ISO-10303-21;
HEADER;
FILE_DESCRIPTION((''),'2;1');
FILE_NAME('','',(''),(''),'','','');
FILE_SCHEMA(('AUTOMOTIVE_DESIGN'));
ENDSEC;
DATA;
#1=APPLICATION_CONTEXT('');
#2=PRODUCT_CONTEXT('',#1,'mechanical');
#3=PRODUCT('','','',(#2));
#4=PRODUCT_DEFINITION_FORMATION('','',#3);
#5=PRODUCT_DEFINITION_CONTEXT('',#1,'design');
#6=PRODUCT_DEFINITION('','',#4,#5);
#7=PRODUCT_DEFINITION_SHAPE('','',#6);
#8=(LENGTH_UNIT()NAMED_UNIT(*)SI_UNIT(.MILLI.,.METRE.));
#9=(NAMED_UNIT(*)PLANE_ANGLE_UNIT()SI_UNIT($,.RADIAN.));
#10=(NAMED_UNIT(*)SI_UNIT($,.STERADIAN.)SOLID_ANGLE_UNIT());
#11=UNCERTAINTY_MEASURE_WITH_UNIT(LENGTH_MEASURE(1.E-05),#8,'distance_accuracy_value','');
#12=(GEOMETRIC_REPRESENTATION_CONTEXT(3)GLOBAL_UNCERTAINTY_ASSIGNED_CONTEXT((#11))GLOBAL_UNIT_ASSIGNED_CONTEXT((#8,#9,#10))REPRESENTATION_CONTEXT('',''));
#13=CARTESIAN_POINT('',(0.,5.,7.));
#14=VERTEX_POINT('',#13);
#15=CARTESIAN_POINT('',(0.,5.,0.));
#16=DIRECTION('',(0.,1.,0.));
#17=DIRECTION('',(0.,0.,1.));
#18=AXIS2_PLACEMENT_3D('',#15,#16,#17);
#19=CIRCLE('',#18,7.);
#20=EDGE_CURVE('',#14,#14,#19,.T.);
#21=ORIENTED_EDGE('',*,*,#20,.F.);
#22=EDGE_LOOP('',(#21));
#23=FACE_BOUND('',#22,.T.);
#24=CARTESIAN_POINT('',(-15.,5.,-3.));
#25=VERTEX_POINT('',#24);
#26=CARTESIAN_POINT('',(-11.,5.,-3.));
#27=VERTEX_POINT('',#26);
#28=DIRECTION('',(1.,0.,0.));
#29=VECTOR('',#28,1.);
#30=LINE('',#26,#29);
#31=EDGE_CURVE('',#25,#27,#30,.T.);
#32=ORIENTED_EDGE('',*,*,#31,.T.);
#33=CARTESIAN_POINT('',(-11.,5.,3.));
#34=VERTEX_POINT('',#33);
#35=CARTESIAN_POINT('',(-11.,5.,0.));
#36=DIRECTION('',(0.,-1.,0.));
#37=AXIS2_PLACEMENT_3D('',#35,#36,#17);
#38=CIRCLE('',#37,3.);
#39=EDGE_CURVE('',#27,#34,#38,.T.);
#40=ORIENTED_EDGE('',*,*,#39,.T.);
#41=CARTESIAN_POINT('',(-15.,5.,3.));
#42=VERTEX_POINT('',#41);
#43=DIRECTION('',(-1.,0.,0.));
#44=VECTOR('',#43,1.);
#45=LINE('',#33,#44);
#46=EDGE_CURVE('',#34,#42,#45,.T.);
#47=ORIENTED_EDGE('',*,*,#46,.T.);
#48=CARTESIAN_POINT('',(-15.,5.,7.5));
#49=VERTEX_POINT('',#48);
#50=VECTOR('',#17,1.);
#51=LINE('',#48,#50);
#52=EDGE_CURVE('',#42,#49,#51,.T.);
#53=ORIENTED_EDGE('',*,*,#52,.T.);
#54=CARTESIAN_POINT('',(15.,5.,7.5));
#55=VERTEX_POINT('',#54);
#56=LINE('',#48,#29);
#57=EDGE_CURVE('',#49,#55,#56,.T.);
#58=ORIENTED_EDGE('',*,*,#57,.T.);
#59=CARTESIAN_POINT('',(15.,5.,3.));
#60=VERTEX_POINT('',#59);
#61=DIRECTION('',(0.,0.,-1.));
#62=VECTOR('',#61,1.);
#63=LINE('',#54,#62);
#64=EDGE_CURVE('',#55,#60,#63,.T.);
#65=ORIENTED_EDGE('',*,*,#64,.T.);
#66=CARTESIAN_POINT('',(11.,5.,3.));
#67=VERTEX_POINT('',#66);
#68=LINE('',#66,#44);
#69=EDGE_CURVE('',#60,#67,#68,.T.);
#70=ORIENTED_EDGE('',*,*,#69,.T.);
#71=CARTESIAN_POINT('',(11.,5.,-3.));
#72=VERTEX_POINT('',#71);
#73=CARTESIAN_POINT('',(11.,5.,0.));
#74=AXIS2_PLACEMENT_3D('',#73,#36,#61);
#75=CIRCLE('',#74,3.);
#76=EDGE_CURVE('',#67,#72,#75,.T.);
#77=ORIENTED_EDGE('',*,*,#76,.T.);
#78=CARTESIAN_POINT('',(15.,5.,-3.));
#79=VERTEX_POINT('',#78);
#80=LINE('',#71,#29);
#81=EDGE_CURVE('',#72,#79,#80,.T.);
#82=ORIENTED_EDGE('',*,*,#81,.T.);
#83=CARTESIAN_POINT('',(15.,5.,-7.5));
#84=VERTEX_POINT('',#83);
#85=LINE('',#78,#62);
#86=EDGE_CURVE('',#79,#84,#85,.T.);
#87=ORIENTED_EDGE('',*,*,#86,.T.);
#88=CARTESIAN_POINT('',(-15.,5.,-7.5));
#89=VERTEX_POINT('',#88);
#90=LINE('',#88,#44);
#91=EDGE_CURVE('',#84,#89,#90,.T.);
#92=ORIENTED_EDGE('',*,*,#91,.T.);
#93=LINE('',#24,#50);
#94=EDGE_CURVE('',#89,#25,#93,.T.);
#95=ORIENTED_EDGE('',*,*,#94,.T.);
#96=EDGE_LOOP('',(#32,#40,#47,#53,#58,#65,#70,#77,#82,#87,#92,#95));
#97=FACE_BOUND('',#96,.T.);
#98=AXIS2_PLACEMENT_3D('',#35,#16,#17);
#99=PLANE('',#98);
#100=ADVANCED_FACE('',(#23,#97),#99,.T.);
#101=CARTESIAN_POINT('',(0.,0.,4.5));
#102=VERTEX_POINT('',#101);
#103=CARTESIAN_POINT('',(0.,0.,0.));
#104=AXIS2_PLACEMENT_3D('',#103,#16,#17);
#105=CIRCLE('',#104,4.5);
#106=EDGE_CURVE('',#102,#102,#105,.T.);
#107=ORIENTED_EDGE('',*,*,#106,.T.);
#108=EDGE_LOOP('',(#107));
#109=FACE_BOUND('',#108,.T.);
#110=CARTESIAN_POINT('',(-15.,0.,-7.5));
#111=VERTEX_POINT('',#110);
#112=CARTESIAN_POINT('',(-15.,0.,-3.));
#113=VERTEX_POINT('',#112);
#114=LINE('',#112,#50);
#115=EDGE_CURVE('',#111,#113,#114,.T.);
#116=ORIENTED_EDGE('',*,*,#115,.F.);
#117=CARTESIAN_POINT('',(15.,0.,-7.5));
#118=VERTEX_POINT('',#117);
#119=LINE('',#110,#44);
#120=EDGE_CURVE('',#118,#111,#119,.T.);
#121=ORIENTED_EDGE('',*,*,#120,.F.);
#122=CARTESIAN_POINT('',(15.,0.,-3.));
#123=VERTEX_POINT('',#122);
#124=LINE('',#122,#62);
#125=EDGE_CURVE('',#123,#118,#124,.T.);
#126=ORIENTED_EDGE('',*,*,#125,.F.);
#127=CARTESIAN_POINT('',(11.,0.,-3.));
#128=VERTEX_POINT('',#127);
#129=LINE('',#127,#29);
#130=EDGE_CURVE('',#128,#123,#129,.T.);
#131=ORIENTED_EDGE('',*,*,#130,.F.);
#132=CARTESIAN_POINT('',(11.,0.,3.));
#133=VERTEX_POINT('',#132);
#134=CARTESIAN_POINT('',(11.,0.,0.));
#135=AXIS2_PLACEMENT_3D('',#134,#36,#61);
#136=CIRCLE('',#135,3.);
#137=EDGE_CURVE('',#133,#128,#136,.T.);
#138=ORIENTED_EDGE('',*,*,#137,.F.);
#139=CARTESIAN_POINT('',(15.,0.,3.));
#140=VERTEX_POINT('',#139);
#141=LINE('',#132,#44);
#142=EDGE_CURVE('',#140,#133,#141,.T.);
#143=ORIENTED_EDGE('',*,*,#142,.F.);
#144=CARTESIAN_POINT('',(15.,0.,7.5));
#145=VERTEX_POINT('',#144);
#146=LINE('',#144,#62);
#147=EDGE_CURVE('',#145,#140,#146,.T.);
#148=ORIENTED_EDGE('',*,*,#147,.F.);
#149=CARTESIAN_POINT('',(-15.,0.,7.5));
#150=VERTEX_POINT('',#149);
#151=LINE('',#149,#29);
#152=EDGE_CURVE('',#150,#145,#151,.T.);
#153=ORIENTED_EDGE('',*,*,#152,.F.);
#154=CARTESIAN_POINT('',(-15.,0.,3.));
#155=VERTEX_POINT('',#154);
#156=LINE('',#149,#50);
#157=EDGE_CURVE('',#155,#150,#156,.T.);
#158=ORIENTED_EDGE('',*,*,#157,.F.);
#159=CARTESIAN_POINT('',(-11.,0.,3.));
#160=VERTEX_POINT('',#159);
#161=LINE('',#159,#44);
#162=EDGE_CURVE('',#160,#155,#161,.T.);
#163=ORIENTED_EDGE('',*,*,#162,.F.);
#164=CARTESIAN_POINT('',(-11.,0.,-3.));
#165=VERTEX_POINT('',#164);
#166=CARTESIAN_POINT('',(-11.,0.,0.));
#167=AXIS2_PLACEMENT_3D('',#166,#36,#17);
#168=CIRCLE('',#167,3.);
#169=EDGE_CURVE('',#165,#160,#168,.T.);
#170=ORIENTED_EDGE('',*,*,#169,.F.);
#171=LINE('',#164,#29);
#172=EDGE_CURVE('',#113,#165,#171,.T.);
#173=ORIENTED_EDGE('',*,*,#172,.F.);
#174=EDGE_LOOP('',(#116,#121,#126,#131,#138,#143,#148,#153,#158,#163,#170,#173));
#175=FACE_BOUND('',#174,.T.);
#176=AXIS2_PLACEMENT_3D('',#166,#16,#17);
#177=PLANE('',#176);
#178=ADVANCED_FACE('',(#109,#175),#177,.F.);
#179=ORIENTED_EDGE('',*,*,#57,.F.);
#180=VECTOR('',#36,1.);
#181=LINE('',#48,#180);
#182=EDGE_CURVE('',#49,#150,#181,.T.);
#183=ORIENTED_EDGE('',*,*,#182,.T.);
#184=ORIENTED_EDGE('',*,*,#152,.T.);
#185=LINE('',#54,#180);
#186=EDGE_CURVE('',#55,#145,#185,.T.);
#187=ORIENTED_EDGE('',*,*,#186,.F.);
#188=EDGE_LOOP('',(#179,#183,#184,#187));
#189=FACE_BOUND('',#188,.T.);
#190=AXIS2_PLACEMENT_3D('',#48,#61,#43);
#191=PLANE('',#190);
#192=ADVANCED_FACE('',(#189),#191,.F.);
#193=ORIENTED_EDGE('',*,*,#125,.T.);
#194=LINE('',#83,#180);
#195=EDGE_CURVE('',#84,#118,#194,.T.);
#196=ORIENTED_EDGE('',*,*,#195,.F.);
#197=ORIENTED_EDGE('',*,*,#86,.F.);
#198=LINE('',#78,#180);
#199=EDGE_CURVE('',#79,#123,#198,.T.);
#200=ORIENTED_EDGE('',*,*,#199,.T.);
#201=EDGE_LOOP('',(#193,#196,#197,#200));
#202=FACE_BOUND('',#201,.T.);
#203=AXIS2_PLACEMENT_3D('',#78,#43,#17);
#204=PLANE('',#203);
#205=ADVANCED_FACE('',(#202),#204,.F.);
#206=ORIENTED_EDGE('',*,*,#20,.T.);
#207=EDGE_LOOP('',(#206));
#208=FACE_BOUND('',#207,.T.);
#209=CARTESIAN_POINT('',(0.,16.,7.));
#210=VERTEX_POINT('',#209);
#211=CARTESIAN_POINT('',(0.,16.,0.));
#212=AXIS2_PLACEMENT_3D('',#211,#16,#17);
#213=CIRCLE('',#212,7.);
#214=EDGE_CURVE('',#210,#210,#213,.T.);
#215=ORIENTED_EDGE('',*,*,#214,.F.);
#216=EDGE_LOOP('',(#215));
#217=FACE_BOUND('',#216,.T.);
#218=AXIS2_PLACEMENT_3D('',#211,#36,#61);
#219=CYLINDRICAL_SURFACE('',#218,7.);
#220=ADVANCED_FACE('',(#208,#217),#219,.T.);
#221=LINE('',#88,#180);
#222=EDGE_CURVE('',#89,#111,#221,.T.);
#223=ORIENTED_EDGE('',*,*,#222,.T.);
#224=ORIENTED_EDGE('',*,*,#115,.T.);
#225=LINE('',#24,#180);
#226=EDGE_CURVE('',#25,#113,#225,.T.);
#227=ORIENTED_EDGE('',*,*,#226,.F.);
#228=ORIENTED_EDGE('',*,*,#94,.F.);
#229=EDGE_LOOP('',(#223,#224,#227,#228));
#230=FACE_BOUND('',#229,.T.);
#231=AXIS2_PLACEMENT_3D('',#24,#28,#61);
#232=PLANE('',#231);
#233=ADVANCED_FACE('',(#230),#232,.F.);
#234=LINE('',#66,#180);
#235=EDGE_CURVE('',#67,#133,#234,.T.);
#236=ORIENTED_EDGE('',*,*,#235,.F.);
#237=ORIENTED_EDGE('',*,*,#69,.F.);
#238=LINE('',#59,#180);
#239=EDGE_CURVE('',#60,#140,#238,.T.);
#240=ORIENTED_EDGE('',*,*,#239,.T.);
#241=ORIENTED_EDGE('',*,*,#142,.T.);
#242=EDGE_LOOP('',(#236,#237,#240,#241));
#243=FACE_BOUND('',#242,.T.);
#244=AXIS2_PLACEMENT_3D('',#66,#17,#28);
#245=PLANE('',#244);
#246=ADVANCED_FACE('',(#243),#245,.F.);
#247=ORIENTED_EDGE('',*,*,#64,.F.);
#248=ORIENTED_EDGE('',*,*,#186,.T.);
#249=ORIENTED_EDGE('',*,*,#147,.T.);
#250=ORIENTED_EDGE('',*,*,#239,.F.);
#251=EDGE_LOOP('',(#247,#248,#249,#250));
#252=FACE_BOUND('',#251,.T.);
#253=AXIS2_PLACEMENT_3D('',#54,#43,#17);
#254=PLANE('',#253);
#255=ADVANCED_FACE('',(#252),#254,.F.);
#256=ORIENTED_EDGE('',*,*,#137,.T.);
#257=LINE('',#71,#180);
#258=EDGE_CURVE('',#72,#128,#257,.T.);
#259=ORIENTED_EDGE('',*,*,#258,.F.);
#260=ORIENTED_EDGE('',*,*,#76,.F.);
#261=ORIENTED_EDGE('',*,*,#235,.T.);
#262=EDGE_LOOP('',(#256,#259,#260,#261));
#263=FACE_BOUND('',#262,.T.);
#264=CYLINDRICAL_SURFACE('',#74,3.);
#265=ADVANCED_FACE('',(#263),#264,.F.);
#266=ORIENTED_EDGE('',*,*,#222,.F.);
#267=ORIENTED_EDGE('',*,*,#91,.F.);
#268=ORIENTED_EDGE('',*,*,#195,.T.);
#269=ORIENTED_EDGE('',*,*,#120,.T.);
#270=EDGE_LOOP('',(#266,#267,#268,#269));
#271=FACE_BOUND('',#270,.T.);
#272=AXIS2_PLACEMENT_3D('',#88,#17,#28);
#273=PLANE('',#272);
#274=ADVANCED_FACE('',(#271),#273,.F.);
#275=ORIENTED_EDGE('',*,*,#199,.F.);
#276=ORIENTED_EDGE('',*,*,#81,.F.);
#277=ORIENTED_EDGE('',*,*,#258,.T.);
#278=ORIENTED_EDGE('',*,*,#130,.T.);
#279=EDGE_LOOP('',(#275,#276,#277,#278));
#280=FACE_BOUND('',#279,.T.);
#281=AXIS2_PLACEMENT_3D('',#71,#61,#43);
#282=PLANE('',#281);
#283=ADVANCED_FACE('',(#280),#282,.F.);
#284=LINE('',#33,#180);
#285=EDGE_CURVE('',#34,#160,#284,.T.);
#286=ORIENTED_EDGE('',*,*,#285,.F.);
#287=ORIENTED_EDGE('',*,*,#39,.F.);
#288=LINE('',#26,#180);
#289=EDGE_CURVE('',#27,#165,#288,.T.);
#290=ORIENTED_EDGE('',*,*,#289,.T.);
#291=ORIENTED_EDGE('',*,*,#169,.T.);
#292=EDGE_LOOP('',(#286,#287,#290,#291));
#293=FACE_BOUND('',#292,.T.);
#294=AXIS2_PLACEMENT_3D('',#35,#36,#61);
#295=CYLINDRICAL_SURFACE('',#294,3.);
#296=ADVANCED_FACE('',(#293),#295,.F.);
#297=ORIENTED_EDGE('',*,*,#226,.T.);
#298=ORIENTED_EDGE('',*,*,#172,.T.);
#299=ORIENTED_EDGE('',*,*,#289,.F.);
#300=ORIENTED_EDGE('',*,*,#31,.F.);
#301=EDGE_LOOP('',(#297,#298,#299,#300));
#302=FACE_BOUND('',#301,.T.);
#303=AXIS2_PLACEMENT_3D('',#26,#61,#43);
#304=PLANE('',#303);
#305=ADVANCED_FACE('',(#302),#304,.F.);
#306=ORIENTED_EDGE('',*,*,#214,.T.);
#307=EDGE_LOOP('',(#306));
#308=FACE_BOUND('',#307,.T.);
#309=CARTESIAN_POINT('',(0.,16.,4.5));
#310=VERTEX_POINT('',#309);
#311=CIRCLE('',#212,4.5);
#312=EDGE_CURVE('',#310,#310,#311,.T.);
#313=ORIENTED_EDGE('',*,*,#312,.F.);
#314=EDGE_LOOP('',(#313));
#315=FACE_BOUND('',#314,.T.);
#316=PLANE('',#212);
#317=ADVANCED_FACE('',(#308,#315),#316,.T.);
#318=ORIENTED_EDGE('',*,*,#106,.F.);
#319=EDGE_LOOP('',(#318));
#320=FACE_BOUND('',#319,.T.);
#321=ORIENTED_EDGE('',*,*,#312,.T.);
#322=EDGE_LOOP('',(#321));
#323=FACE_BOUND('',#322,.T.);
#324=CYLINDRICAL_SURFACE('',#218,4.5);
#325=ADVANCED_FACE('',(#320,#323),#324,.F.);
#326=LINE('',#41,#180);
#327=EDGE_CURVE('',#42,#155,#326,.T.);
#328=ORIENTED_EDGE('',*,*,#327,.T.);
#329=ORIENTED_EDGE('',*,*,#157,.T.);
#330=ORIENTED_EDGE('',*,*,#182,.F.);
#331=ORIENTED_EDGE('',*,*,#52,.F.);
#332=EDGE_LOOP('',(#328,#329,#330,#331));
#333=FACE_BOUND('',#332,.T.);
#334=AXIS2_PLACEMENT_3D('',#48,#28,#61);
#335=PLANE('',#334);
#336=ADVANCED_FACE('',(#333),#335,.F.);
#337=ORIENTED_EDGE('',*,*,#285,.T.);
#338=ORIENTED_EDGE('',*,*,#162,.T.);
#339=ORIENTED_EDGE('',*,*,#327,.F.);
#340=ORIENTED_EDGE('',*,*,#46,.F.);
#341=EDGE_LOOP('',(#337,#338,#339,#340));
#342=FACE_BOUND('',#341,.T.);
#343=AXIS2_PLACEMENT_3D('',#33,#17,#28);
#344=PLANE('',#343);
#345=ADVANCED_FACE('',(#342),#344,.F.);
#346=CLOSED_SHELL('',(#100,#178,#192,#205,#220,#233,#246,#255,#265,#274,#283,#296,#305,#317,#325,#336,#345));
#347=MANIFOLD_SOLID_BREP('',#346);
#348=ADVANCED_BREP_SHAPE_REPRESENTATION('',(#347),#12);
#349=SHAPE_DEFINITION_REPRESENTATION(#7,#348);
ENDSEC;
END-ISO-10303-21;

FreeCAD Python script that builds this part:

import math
import FreeCAD as App
import Part
import Sketcher

V = App.Vector
Q = App.Units.Quantity

doc = App.newDocument("Part")
body = doc.addObject("PartDesign::Body", "Body")

sketch1 = doc.addObject("Sketcher::SketchObject", "Sketch")
body.addObject(sketch1)
sketch1.AttachmentSupport = (doc.XZ_Plane, [""])
sketch1.MapMode = "FlatFace"
sketch1.addGeometry([
    Part.LineSegment(V(-15, 7.5, 0), V(15, 7.5, 0)),
    Part.LineSegment(V(15, 7.5, 0), V(15, 3, 0)),
    Part.LineSegment(V(15, 3, 0), V(11, 3, 0)),
    Part.ArcOfCircle(Part.Circle(V(11, 0, 0), V(0, 0, 1), 3), math.radians(90), math.radians(270)),
    Part.LineSegment(V(11, -3, 0), V(15, -3, 0)),
    Part.LineSegment(V(15, -3, 0), V(15, -7.5, 0)),
    Part.LineSegment(V(15, -7.5, 0), V(-15, -7.5, 0)),
    Part.LineSegment(V(-15, -7.5, 0), V(-15, -3, 0)),
    Part.LineSegment(V(-15, -3, 0), V(-11, -3, 0)),
    Part.ArcOfCircle(Part.Circle(V(-11, 0, 0), V(0, 0, 1), 3), math.radians(-90), math.radians(90)),
    Part.LineSegment(V(-11, 3, 0), V(-15, 3, 0)),
    Part.LineSegment(V(-15, 3, 0), V(-15, 7.5, 0)),
], False)
sketch1.addConstraint([
    Sketcher.Constraint("Coincident", 0, 2, 1, 1),
    Sketcher.Constraint("Coincident", 1, 2, 2, 1),
    Sketcher.Constraint("Tangent", 2, 2, 3, 1),
    Sketcher.Constraint("Tangent", 3, 2, 4, 1),
    Sketcher.Constraint("Coincident", 4, 2, 5, 1),
    Sketcher.Constraint("Coincident", 5, 2, 6, 1),
    Sketcher.Constraint("Coincident", 6, 2, 7, 1),
    Sketcher.Constraint("Coincident", 7, 2, 8, 1),
    Sketcher.Constraint("Tangent", 8, 2, 9, 1),
    Sketcher.Constraint("Tangent", 9, 2, 10, 1),
    Sketcher.Constraint("Coincident", 10, 2, 11, 1),
    Sketcher.Constraint("Coincident", 11, 2, 0, 1),
    Sketcher.Constraint("Horizontal", 0),
    Sketcher.Constraint("Vertical", 1),
    Sketcher.Constraint("Horizontal", 2),
    Sketcher.Constraint("Horizontal", 4),
    Sketcher.Constraint("Vertical", 5),
    Sketcher.Constraint("Horizontal", 6),
    Sketcher.Constraint("Vertical", 7),
    Sketcher.Constraint("Horizontal", 8),
    Sketcher.Constraint("Horizontal", 10),
    Sketcher.Constraint("Vertical", 11),
    Sketcher.Constraint("Equal", 3, 9),
    Sketcher.Constraint("Symmetric", 3, 3, 9, 3, -1, 1),
    Sketcher.Constraint("Symmetric", 0, 2, 6, 2, -1, 1),
    Sketcher.Constraint("Symmetric", 4, 2, 7, 2, -2),
    Sketcher.Constraint("Vertical", 7, 2, 10, 2),
    Sketcher.Constraint("Radius", 3, Q("3 mm")),
    Sketcher.Constraint("DistanceX", 0, 1, 0, 2, Q("30 mm")),
    Sketcher.Constraint("DistanceX", 2, 2, 2, 1, Q("4 mm")),
    Sketcher.Constraint("DistanceY", 1, 2, 1, 1, Q("4.5 mm")),
])
pad1 = doc.addObject("PartDesign::Pad", "Pad")
body.addObject(pad1)
pad1.Profile = sketch1
pad1.Length = 5
pad1.Reversed = True

sketch2 = doc.addObject("Sketcher::SketchObject", "Sketch001")
body.addObject(sketch2)
sketch2.AttachmentSupport = (doc.XZ_Plane, [""])
sketch2.MapMode = "FlatFace"
sketch2.AttachmentOffset = App.Placement(V(0, 0, -5), App.Rotation())
sketch2.addGeometry([
    Part.Circle(V(0, 0, 0), V(0, 0, 1), 7),
    Part.Circle(V(0, 0, 0), V(0, 0, 1), 4.5),
], False)
sketch2.addConstraint([
    Sketcher.Constraint("Coincident", 0, 3, -1, 1),
    Sketcher.Constraint("Coincident", 1, 3, -1, 1),
    Sketcher.Constraint("Diameter", 0, Q("14 mm")),
    Sketcher.Constraint("Diameter", 1, Q("9 mm")),
])
pad2 = doc.addObject("PartDesign::Pad", "Pad001")
body.addObject(pad2)
pad2.Profile = sketch2
pad2.Length = 11
pad2.Reversed = True

sketch3 = doc.addObject("Sketcher::SketchObject", "Sketch002")
body.addObject(sketch3)
sketch3.AttachmentSupport = (doc.XZ_Plane, [""])
sketch3.MapMode = "FlatFace"
sketch3.AttachmentOffset = App.Placement(V(0, 0, -5), App.Rotation())
sketch3.addGeometry(Part.Circle(V(0, 0, 0), V(0, 0, 1), 4.5), False)
sketch3.addConstraint([
    Sketcher.Constraint("Coincident", 0, 3, -1, 1),
    Sketcher.Constraint("Diameter", 0, Q("9 mm")),
])
pocket1 = doc.addObject("PartDesign::Pocket", "Pocket")
body.addObject(pocket1)
pocket1.Profile = sketch3
pocket1.Type = "ThroughAll"
pocket1.Reversed = True

doc.recompute()
